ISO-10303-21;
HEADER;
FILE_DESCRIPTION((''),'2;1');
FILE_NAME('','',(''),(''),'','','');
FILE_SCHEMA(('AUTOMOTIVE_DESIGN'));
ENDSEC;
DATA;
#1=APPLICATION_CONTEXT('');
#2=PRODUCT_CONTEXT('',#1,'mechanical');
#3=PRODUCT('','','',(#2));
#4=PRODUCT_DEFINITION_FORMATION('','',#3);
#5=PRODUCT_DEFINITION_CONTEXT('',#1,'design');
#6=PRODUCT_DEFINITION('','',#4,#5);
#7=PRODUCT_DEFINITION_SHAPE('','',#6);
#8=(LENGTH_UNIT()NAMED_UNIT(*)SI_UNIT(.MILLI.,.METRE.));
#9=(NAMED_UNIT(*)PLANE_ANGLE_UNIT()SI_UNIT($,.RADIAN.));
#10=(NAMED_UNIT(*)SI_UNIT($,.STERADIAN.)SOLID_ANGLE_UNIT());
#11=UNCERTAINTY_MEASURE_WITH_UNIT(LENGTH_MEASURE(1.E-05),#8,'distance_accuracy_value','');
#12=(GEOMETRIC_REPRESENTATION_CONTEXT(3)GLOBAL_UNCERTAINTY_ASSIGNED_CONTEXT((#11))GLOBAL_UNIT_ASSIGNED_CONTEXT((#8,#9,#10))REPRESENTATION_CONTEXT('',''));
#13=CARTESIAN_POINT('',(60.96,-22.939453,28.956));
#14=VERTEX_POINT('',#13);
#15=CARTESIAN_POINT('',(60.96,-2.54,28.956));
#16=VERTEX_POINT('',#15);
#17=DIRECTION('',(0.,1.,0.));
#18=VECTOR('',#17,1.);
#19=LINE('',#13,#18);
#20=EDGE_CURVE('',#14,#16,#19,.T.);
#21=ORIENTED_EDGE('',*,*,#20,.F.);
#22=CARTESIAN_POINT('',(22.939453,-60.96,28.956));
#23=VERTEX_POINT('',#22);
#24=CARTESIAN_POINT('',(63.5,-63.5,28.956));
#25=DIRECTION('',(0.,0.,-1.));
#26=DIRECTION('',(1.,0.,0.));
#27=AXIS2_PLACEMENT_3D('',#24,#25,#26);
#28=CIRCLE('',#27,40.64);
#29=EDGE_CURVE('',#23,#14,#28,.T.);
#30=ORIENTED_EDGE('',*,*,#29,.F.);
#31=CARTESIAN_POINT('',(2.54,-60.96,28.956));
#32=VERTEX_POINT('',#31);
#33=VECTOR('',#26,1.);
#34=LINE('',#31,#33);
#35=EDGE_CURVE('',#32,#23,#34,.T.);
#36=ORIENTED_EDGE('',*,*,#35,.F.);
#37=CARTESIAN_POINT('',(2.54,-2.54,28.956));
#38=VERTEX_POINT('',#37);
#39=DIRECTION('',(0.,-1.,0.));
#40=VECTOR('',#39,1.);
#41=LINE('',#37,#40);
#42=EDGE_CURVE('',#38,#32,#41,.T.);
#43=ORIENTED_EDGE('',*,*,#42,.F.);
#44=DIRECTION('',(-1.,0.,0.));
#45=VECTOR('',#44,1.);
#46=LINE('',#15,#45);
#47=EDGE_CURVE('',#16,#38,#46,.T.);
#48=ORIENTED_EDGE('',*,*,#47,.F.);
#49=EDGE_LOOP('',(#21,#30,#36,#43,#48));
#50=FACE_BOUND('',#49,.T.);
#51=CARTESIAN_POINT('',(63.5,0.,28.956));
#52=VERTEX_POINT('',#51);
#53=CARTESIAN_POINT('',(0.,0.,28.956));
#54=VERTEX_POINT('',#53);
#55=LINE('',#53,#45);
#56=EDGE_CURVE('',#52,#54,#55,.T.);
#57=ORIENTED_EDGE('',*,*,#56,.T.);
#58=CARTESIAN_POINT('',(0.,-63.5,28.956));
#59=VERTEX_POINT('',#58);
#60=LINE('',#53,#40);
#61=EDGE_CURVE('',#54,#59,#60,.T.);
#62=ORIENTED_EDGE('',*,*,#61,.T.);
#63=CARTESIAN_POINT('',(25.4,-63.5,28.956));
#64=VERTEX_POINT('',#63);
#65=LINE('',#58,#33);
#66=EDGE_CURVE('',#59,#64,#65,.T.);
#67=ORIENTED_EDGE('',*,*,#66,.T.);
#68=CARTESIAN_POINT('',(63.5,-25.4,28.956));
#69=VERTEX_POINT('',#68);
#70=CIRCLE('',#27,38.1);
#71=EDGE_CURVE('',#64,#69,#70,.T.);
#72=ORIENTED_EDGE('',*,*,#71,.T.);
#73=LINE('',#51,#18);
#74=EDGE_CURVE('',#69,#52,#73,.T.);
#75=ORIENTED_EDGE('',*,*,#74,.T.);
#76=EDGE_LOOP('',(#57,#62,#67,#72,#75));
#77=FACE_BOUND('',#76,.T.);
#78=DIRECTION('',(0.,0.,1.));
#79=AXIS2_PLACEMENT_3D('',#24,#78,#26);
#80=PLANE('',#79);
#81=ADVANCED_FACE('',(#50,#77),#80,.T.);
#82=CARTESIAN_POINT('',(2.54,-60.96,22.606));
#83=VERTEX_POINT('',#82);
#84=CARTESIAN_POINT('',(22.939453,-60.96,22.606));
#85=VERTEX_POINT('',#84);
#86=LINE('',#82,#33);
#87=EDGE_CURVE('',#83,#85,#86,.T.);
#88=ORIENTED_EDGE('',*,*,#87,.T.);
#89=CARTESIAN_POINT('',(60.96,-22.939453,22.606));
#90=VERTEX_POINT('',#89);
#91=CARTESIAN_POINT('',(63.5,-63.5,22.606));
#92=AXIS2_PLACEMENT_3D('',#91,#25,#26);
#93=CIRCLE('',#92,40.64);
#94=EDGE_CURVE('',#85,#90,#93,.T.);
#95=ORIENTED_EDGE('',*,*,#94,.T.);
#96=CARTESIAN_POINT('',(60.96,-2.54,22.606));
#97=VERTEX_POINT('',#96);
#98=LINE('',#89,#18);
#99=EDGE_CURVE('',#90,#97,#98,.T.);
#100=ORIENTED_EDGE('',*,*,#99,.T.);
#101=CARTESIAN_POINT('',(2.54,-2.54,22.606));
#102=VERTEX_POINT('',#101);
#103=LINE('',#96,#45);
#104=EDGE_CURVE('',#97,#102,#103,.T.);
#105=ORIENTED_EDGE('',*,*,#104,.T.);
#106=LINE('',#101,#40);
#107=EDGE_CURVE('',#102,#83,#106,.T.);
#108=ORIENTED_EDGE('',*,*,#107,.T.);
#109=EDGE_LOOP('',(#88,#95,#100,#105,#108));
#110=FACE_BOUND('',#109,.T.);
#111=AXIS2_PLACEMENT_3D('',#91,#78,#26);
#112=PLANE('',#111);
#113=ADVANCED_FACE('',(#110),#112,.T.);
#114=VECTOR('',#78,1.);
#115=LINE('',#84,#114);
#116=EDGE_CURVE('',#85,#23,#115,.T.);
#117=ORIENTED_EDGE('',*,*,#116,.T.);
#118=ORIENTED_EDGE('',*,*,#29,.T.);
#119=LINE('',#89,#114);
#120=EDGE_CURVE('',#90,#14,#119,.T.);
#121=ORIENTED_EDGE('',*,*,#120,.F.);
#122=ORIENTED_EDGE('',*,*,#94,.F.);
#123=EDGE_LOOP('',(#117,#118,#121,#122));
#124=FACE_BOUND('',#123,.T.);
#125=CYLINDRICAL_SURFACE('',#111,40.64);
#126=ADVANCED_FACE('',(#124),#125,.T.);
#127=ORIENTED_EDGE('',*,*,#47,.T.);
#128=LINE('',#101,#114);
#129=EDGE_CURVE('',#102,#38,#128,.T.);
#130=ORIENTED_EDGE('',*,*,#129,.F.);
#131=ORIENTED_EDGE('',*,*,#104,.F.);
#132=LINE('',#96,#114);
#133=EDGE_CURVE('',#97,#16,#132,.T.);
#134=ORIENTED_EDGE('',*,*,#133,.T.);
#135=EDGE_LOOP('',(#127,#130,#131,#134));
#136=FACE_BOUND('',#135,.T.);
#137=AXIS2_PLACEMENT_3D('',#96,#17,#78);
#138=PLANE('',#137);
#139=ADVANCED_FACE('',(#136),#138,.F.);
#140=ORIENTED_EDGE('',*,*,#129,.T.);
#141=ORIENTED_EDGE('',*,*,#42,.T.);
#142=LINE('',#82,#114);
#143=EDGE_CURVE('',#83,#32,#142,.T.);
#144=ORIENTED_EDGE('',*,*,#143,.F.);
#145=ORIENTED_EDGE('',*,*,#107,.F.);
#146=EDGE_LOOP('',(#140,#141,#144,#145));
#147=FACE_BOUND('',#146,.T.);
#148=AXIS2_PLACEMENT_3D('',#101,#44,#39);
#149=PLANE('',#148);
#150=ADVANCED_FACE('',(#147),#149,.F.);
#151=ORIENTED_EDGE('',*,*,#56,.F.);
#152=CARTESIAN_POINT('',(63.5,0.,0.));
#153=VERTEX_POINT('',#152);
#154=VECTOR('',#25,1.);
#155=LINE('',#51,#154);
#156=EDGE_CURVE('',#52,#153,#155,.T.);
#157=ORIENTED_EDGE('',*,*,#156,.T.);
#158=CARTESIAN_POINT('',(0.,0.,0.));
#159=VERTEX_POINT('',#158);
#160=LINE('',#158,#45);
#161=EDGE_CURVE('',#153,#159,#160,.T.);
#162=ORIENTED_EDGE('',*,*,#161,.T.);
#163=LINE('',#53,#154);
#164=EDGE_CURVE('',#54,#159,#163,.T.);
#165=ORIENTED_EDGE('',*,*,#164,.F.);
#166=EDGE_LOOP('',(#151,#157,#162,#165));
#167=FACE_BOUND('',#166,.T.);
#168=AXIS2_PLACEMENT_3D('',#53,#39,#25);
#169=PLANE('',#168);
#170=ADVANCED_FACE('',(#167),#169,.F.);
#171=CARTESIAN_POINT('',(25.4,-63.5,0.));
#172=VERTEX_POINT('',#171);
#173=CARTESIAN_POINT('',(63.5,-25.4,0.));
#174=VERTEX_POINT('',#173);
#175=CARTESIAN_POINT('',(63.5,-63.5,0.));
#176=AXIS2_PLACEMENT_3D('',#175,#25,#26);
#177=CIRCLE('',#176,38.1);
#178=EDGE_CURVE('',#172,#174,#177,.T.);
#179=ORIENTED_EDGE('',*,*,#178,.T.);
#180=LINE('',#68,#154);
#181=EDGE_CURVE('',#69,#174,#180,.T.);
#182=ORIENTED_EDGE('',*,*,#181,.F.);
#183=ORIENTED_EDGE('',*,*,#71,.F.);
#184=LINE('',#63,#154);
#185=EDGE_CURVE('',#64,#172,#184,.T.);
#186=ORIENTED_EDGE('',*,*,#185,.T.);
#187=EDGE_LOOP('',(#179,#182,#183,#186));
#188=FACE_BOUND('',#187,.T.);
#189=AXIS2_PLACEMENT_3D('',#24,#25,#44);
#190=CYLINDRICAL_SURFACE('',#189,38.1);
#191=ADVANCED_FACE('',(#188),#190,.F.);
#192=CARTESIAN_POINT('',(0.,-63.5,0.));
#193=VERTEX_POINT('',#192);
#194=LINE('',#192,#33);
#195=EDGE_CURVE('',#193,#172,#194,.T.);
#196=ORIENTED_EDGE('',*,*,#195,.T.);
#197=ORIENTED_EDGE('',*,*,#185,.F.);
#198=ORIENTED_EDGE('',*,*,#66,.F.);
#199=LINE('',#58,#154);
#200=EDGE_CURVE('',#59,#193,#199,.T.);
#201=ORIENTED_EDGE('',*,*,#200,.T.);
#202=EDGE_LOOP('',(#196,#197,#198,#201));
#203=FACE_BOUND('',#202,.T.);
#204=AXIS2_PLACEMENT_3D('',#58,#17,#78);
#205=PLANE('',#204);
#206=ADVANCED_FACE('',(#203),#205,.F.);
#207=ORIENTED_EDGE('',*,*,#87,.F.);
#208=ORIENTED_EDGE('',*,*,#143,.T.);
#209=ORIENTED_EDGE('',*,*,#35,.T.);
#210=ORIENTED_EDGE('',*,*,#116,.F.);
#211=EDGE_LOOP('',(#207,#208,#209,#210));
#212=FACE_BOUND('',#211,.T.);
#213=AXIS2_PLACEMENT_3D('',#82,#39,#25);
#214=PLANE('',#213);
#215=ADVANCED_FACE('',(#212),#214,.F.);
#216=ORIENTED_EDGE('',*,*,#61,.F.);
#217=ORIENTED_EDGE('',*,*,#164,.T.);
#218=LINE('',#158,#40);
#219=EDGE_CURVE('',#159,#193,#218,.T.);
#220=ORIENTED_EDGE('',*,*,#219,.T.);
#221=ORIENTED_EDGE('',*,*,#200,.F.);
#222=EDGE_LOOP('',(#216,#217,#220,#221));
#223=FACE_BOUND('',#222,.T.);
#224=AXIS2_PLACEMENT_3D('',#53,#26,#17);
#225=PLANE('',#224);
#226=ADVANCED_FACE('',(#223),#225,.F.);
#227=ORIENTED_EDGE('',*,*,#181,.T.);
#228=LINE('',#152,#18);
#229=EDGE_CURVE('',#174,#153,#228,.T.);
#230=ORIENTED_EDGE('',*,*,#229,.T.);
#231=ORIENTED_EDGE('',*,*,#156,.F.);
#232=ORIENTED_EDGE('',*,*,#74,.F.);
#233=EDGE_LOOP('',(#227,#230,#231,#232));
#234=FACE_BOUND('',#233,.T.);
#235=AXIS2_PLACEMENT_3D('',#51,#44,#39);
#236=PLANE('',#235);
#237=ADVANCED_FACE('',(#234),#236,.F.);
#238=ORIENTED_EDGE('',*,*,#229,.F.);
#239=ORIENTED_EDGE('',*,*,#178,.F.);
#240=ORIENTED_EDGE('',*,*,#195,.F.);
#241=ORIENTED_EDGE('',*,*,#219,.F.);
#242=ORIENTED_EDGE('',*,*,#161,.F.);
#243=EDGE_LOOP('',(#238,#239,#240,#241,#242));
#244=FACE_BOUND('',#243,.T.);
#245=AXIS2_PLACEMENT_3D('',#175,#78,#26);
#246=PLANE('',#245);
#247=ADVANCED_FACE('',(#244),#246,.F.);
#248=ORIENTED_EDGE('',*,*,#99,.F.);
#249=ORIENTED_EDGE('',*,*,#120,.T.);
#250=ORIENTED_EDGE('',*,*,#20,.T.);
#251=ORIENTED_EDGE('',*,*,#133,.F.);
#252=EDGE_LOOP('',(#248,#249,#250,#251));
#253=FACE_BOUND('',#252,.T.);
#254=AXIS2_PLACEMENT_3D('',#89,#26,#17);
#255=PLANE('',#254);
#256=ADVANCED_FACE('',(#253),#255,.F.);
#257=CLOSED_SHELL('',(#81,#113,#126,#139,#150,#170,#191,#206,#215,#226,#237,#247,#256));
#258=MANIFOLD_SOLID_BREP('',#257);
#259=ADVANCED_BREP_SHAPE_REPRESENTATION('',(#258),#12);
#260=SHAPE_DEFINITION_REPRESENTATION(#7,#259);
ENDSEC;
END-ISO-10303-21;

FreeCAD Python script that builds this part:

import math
import FreeCAD as App
import Part
import Sketcher
from FreeCAD import Vector
Q = App.Units.Quantity

doc = App.newDocument("Part")
body = doc.addObject("PartDesign::Body", "Body")

sketch1 = body.newObject("Sketcher::SketchObject", "Sketch")
sketch1.AttachmentSupport = (doc.getObject("XY_Plane"), [""])
sketch1.MapMode = "FlatFace"
sketch1.addGeometry([
    Part.LineSegment(Vector(64, 0, 0), Vector(0, 0, 0)),
    Part.LineSegment(Vector(0, 0, 0), Vector(0, -64, 0)),
    Part.LineSegment(Vector(0, -64, 0), Vector(25, -64, 0)),
    Part.ArcOfCircle(Part.Circle(Vector(64, -64, 0), Vector(0, 0, 1), 38), math.radians(90), math.radians(180)),
    Part.LineSegment(Vector(64, -25, 0), Vector(64, 0, 0)),
], False)
sketch1.addConstraint([
    Sketcher.Constraint("Coincident", 0, 2, 1, 1),
    Sketcher.Constraint("Coincident", 1, 2, 2, 1),
    Sketcher.Constraint("Coincident", 2, 2, 3, 2),
    Sketcher.Constraint("Coincident", 3, 1, 4, 1),
    Sketcher.Constraint("Coincident", 4, 2, 0, 1),
    Sketcher.Constraint("Horizontal", 0),
    Sketcher.Constraint("Vertical", 1),
    Sketcher.Constraint("Horizontal", 2),
    Sketcher.Constraint("Vertical", 4),
    Sketcher.Constraint("Coincident", 0, 2, -1, 1),
    Sketcher.Constraint("Horizontal", 3, 3, 1, 2),
    Sketcher.Constraint("Equal", 0, 1),
    Sketcher.Constraint("Equal", 2, 4),
    Sketcher.Constraint("Radius", 3, Q("1.5 in")),
    Sketcher.Constraint("DistanceX", 2, 1, 2, 2, Q("1 in")),
])
pad1 = body.newObject("PartDesign::Pad", "Pad")
pad1.Profile = sketch1
pad1.Length = Q("1.14 in")

sketch2 = body.newObject("Sketcher::SketchObject", "Sketch001")
sketch2.AttachmentSupport = (doc.getObject("XY_Plane"), [""])
sketch2.MapMode = "FlatFace"
sketch2.AttachmentOffset = App.Placement(Vector(0, 0, 1.14 * 25.4), App.Rotation())
sketch2.addGeometry([
    Part.LineSegment(Vector(3, -3, 0), Vector(3, -61, 0)),
    Part.LineSegment(Vector(3, -61, 0), Vector(23, -61, 0)),
    Part.ArcOfCircle(Part.Circle(Vector(64, -64, 0), Vector(0, 0, 1), 41), math.radians(94), math.radians(176)),
    Part.LineSegment(Vector(61, -23, 0), Vector(61, -3, 0)),
    Part.LineSegment(Vector(61, -3, 0), Vector(3, -3, 0)),
], False)
sketch2.addConstraint([
    Sketcher.Constraint("Coincident", 0, 2, 1, 1),
    Sketcher.Constraint("Coincident", 1, 2, 2, 2),
    Sketcher.Constraint("Coincident", 2, 1, 3, 1),
    Sketcher.Constraint("Coincident", 3, 2, 4, 1),
    Sketcher.Constraint("Coincident", 4, 2, 0, 1),
    Sketcher.Constraint("Vertical", 0),
    Sketcher.Constraint("Horizontal", 1),
    Sketcher.Constraint("Vertical", 3),
    Sketcher.Constraint("Horizontal", 4),
    Sketcher.Constraint("Equal", 4, 0),
    Sketcher.Constraint("Equal", 1, 3),
    Sketcher.Constraint("Radius", 2, Q("1.6 in")),
    Sketcher.Constraint("DistanceX", 4, 2, 4, 1, Q("2.3 in")),
    Sketcher.Constraint("DistanceX", -1, 1, 2, 3, Q("2.5 in")),
    Sketcher.Constraint("DistanceY", 2, 3, -1, 1, Q("2.5 in")),
    Sketcher.Constraint("DistanceX", -1, 1, 0, 2, Q("0.1 in")),
])
pocket1 = body.newObject("PartDesign::Pocket", "Pocket")
pocket1.Profile = sketch2
pocket1.Length = Q("0.25 in")

doc.recompute()
